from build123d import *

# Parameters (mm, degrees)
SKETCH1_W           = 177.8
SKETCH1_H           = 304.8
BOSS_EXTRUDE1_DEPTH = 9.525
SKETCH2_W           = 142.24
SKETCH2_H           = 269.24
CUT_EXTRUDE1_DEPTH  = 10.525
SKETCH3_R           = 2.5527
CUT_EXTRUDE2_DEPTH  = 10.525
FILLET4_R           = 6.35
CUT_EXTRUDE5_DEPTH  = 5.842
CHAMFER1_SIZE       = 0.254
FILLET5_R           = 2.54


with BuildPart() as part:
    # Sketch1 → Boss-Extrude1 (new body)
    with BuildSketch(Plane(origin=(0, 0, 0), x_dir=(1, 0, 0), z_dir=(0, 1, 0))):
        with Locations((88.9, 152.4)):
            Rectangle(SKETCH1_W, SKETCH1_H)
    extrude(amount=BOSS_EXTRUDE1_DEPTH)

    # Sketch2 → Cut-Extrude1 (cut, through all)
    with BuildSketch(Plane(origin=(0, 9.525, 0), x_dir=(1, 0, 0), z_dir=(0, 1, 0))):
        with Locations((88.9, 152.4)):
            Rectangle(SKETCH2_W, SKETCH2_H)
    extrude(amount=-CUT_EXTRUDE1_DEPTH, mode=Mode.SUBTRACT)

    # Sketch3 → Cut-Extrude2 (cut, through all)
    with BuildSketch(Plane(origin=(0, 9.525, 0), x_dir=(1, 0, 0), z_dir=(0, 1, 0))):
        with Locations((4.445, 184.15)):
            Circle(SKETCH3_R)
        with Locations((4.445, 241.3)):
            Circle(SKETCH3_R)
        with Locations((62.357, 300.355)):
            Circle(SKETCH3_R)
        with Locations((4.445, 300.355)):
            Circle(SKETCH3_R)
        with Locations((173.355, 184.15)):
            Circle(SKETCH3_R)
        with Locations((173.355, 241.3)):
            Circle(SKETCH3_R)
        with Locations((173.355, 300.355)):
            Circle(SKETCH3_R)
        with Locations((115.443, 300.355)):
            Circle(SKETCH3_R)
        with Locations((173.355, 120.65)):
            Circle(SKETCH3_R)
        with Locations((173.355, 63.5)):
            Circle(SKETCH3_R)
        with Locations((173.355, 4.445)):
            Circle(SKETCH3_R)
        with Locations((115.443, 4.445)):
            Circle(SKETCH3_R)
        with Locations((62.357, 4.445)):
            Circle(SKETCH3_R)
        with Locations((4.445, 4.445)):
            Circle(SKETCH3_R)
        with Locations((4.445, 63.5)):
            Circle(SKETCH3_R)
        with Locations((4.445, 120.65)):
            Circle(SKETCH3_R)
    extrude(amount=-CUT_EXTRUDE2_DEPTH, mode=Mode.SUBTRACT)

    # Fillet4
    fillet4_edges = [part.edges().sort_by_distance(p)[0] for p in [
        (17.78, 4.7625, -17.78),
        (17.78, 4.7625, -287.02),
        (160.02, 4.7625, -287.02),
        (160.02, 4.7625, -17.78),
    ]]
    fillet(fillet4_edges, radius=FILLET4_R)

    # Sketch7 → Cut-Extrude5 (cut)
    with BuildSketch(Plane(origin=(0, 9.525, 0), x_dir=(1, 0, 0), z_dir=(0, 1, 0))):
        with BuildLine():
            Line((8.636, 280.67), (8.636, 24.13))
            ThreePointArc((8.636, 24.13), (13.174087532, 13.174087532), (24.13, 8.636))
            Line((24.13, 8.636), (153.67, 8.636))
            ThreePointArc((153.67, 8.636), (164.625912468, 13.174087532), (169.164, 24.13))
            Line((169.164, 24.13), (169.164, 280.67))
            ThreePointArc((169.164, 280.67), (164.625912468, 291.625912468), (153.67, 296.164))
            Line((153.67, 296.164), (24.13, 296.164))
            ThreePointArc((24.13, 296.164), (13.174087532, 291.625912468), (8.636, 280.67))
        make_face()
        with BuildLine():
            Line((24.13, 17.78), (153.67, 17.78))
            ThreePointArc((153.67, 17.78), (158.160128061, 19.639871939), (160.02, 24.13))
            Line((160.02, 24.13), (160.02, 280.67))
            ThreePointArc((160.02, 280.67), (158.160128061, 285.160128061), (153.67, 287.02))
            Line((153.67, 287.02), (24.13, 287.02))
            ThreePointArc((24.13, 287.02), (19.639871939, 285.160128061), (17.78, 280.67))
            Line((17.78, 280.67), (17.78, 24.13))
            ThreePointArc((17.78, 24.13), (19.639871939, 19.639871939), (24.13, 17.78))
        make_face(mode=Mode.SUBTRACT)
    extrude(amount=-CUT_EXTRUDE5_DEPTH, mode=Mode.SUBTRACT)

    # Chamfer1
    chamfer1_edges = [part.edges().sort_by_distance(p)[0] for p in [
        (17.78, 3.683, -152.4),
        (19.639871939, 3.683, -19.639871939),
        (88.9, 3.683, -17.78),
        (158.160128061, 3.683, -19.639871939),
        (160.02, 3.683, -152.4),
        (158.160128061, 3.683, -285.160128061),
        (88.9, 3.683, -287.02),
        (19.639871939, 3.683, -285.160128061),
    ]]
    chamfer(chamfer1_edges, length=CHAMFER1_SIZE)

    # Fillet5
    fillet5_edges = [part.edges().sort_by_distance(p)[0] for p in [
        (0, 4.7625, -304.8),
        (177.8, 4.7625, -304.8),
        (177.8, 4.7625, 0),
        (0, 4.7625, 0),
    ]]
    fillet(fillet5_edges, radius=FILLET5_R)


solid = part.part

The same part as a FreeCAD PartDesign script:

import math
import FreeCAD as App
import Part
import Sketcher

V = App.Vector
Q = App.Units.Quantity


def edges_at(feature, points):
    """Names of the edges that pass closest to the given points."""
    edges = feature.Shape.Edges
    near = lambda p: min(range(len(edges)), key=lambda i: edges[i].distToShape(Part.Vertex(*p))[0])
    return sorted({f"Edge{near(p) + 1}" for p in points})


def add_polygon(sketch, points):
    """Adds a closed chain of lines whose ends are joined by coincident constraints."""
    first, n = sketch.GeometryCount, len(points)
    for a, b in zip(points, points[1:] + points[:1]):
        sketch.addGeometry(Part.LineSegment(App.Vector(*a, 0), App.Vector(*b, 0)), False)
    for i in range(n):
        sketch.addConstraint(Sketcher.Constraint("Coincident", first + i, 2, first + (i + 1) % n, 1))

doc = App.newDocument("Part")
body = doc.addObject("PartDesign::Body", "Body")

# Sketch on XZ plane
sketch1 = body.newObject("Sketcher::SketchObject", "Sketch")
sketch1.AttachmentSupport = (doc.getObject("XZ_Plane"), [""])
sketch1.MapMode = "FlatFace"
add_polygon(sketch1, [(0, -305), (0, 0), (178, 0), (178, -305)])  # lines 0-3
sketch1.addConstraint([
    Sketcher.Constraint("Vertical", 0),
    Sketcher.Constraint("Horizontal", 1),
    Sketcher.Constraint("Vertical", 2),
    Sketcher.Constraint("Horizontal", 3),
    Sketcher.Constraint("Coincident", 0, 2, -1, 1),
    Sketcher.Constraint("DistanceX", 1, 1, 1, 2, Q("7 in")),
    Sketcher.Constraint("DistanceY", 0, 1, 0, 2, Q("12 in")),
])
pad1 = body.newObject("PartDesign::Pad", "Pad")
pad1.Profile = sketch1
pad1.Length = Q("0.375 in")
pad1.Reversed = True

# Sketch on XZ plane
sketch2 = body.newObject("Sketcher::SketchObject", "Sketch001")
sketch2.AttachmentSupport = (doc.getObject("XZ_Plane"), [""])
sketch2.MapMode = "FlatFace"
sketch2.AttachmentOffset = App.Placement(V(0, 0, -0.375 * 25.4), App.Rotation())
add_polygon(sketch2, [(18, -287), (18, -18), (160, -18), (160, -287)])  # lines 0-3
sketch2.addConstraint([
    Sketcher.Constraint("Vertical", 0),
    Sketcher.Constraint("Horizontal", 1),
    Sketcher.Constraint("Vertical", 2),
    Sketcher.Constraint("Horizontal", 3),
    Sketcher.Constraint("DistanceX", 1, 1, 1, 2, Q("5.6 in")),
    Sketcher.Constraint("DistanceY", 0, 1, 0, 2, Q("10.6 in")),
    Sketcher.Constraint("DistanceX", -1, 1, 0, 2, Q("0.7 in")),
    Sketcher.Constraint("DistanceY", 0, 2, -1, 1, Q("0.7 in")),
])
pocket1 = body.newObject("PartDesign::Pocket", "Pocket")
pocket1.Profile = sketch2
pocket1.Type = "ThroughAll"
pocket1.Reversed = True

# Sketch on XZ plane
sketch3 = body.newObject("Sketcher::SketchObject", "Sketch002")
sketch3.AttachmentSupport = (doc.getObject("XZ_Plane"), [""])
sketch3.MapMode = "FlatFace"
sketch3.AttachmentOffset = App.Placement(V(0, 0, -0.375 * 25.4), App.Rotation())
sketch3.addGeometry([
    Part.Circle(V(4.4, -184.2, 0), V(0, 0, 1), 2.6),  # 0
    Part.Circle(V(4.4, -241.3, 0), V(0, 0, 1), 2.6),  # 1
    Part.Circle(V(62.4, -300.4, 0), V(0, 0, 1), 2.6),  # 2
    Part.Circle(V(4.4, -300.4, 0), V(0, 0, 1), 2.6),  # 3
    Part.Circle(V(173.4, -184.2, 0), V(0, 0, 1), 2.6),  # 4
    Part.Circle(V(173.4, -241.3, 0), V(0, 0, 1), 2.6),  # 5
    Part.Circle(V(173.4, -300.4, 0), V(0, 0, 1), 2.6),  # 6
    Part.Circle(V(115.4, -300.4, 0), V(0, 0, 1), 2.6),  # 7
    Part.Circle(V(173.4, -120.7, 0), V(0, 0, 1), 2.6),  # 8
    Part.Circle(V(173.4, -63.5, 0), V(0, 0, 1), 2.6),  # 9
    Part.Circle(V(173.4, -4.4, 0), V(0, 0, 1), 2.6),  # 10
    Part.Circle(V(115.4, -4.4, 0), V(0, 0, 1), 2.6),  # 11
    Part.Circle(V(62.4, -4.4, 0), V(0, 0, 1), 2.6),  # 12
    Part.Circle(V(4.4, -4.4, 0), V(0, 0, 1), 2.6),  # 13
    Part.Circle(V(4.4, -63.5, 0), V(0, 0, 1), 2.6),  # 14
    Part.Circle(V(4.4, -120.7, 0), V(0, 0, 1), 2.6),  # 15
], False)
sketch3.addConstraint([
    Sketcher.Constraint("Equal", 0, 1),
    Sketcher.Constraint("Equal", 1, 2),
    Sketcher.Constraint("Equal", 2, 3),
    Sketcher.Constraint("Equal", 3, 4),
    Sketcher.Constraint("Equal", 4, 5),
    Sketcher.Constraint("Equal", 5, 6),
    Sketcher.Constraint("Equal", 6, 7),
    Sketcher.Constraint("Equal", 7, 8),
    Sketcher.Constraint("Equal", 8, 9),
    Sketcher.Constraint("Equal", 9, 10),
    Sketcher.Constraint("Equal", 10, 11),
    Sketcher.Constraint("Equal", 11, 12),
    Sketcher.Constraint("Equal", 12, 13),
    Sketcher.Constraint("Equal", 13, 14),
    Sketcher.Constraint("Equal", 14, 15),
    Sketcher.Constraint("Horizontal", 2, 3, 3, 3),
    Sketcher.Constraint("Horizontal", 0, 3, 4, 3),
    Sketcher.Constraint("Horizontal", 1, 3, 5, 3),
    Sketcher.Constraint("Horizontal", 3, 3, 6, 3),
    Sketcher.Constraint("Horizontal", 6, 3, 7, 3),
    Sketcher.Constraint("Horizontal", 10, 3, 11, 3),
    Sketcher.Constraint("Horizontal", 11, 3, 12, 3),
    Sketcher.Constraint("Horizontal", 12, 3, 13, 3),
    Sketcher.Constraint("Horizontal", 9, 3, 14, 3),
    Sketcher.Constraint("Horizontal", 8, 3, 15, 3),
    Sketcher.Constraint("Vertical", 0, 3, 1, 3),
    Sketcher.Constraint("Vertical", 1, 3, 3, 3),
    Sketcher.Constraint("Vertical", 4, 3, 5, 3),
    Sketcher.Constraint("Vertical", 5, 3, 6, 3),
    Sketcher.Constraint("Vertical", 6, 3, 8, 3),
    Sketcher.Constraint("Vertical", 8, 3, 9, 3),
    Sketcher.Constraint("Vertical", 9, 3, 10, 3),
    Sketcher.Constraint("Vertical", 7, 3, 11, 3),
    Sketcher.Constraint("Vertical", 2, 3, 12, 3),
    Sketcher.Constraint("Vertical", 3, 3, 13, 3),
    Sketcher.Constraint("Vertical", 13, 3, 14, 3),
    Sketcher.Constraint("Vertical", 14, 3, 15, 3),
    Sketcher.Constraint("Diameter", 0, Q("0.201 in")),
    Sketcher.Constraint("DistanceY", 5, 3, 9, 3, Q("7 in")),
    Sketcher.Constraint("DistanceY", 1, 3, -1, 1, Q("9.5 in")),
    Sketcher.Constraint("DistanceY", 4, 3, 8, 3, Q("2.5 in")),
    Sketcher.Constraint("DistanceY", 0, 3, -1, 1, Q("7.25 in")),
    Sketcher.Constraint("DistanceX", 1, 3, 2, 3, Q("2.28 in")),
    Sketcher.Constraint("DistanceX", 2, 3, 4, 3, Q("4.37 in")),
    Sketcher.Constraint("DistanceX", 2, 3, 7, 3, Q("2.09 in")),
    Sketcher.Constraint("DistanceX", -1, 1, 0, 3, Q("0.175 in")),
    Sketcher.Constraint("DistanceY", 2, 3, -1, 1, Q("11.825 in")),
    Sketcher.Constraint("DistanceY", 10, 3, -1, 1, Q("0.175 in")),
])
pocket2 = body.newObject("PartDesign::Pocket", "Pocket001")
pocket2.Profile = sketch3
pocket2.Type = "ThroughAll"
pocket2.Reversed = True
doc.recompute()

fillet = body.newObject("PartDesign::Fillet", "Fillet")
fillet.Base = (pocket2, edges_at(pocket2, [
    (17.78, 4.763, -17.78),
    (17.78, 4.763, -287.02),
    (160.02, 4.763, -287.02),
    (160.02, 4.763, -17.78),
]))
fillet.Radius = Q("0.25 in")

# Sketch on XZ plane
sketch4 = body.newObject("Sketcher::SketchObject", "Sketch003")
sketch4.AttachmentSupport = (doc.getObject("XZ_Plane"), [""])
sketch4.MapMode = "FlatFace"
sketch4.AttachmentOffset = App.Placement(V(0, 0, -0.375 * 25.4), App.Rotation())
sketch4.addGeometry([
    Part.LineSegment(V(9, -281, 0), V(9, -24, 0)),  # 0
    Part.ArcOfCircle(Part.Circle(V(24, -24, 0), V(0, 0, 1), 15), math.radians(90), math.radians(180)),  # 1
    Part.LineSegment(V(24, -9, 0), V(154, -9, 0)),  # 2
    Part.ArcOfCircle(Part.Circle(V(154, -24, 0), V(0, 0, 1), 15), math.radians(0), math.radians(90)),  # 3
    Part.LineSegment(V(169, -24, 0), V(169, -281, 0)),  # 4
    Part.ArcOfCircle(Part.Circle(V(154, -281, 0), V(0, 0, 1), 15), math.radians(-90), math.radians(0)),  # 5
    Part.LineSegment(V(154, -296, 0), V(24, -296, 0)),  # 6
    Part.ArcOfCircle(Part.Circle(V(24, -281, 0), V(0, 0, 1), 15), math.radians(180), math.radians(270)),  # 7
    Part.LineSegment(V(154, -18, 0), V(24, -18, 0)),  # 8
    Part.ArcOfCircle(Part.Circle(V(24, -24, 0), V(0, 0, 1), 6), math.radians(90), math.radians(180)),  # 9
    Part.LineSegment(V(18, -24, 0), V(18, -281, 0)),  # 10
    Part.ArcOfCircle(Part.Circle(V(24, -281, 0), V(0, 0, 1), 6), math.radians(180), math.radians(270)),  # 11
    Part.LineSegment(V(24, -287, 0), V(154, -287, 0)),  # 12
    Part.ArcOfCircle(Part.Circle(V(154, -281, 0), V(0, 0, 1), 6), math.radians(-90), math.radians(0)),  # 13
    Part.LineSegment(V(160, -281, 0), V(160, -24, 0)),  # 14
    Part.ArcOfCircle(Part.Circle(V(154, -24, 0), V(0, 0, 1), 6), math.radians(0), math.radians(90)),  # 15
], False)
sketch4.addConstraint([
    Sketcher.Constraint("Tangent", 0, 2, 1, 2),
    Sketcher.Constraint("Tangent", 1, 1, 2, 1),
    Sketcher.Constraint("Tangent", 2, 2, 3, 2),
    Sketcher.Constraint("Tangent", 3, 1, 4, 1),
    Sketcher.Constraint("Tangent", 4, 2, 5, 2),
    Sketcher.Constraint("Tangent", 5, 1, 6, 1),
    Sketcher.Constraint("Tangent", 6, 2, 7, 2),
    Sketcher.Constraint("Tangent", 7, 1, 0, 1),
    Sketcher.Constraint("Tangent", 8, 2, 9, 1),
    Sketcher.Constraint("Tangent", 9, 2, 10, 1),
    Sketcher.Constraint("Tangent", 10, 2, 11, 1),
    Sketcher.Constraint("Tangent", 11, 2, 12, 1),
    Sketcher.Constraint("Tangent", 12, 2, 13, 1),
    Sketcher.Constraint("Tangent", 13, 2, 14, 1),
    Sketcher.Constraint("Tangent", 14, 2, 15, 1),
    Sketcher.Constraint("Tangent", 15, 2, 8, 1),
    Sketcher.Constraint("Vertical", 0),
    Sketcher.Constraint("Horizontal", 2),
    Sketcher.Constraint("Vertical", 4),
    Sketcher.Constraint("Horizontal", 6),
    Sketcher.Constraint("Horizontal", 8),
    Sketcher.Constraint("Vertical", 10),
    Sketcher.Constraint("Horizontal", 12),
    Sketcher.Constraint("Vertical", 14),
    Sketcher.Constraint("Coincident", 9, 3, 1, 3),
    Sketcher.Constraint("Coincident", 11, 3, 7, 3),
    Sketcher.Constraint("Coincident", 13, 3, 5, 3),
    Sketcher.Constraint("Equal", 1, 3),
    Sketcher.Constraint("Equal", 3, 5),
    Sketcher.Constraint("Equal", 5, 7),
    Sketcher.Constraint("Equal", 13, 15),
    Sketcher.Constraint("Radius", 1, Q("0.61 in")),
    Sketcher.Constraint("Radius", 9, Q("0.25 in")),
    Sketcher.Constraint("DistanceX", 2, 1, 2, 2, Q("5.1 in")),
    Sketcher.Constraint("DistanceY", 0, 1, 0, 2, Q("10.1 in")),
    Sketcher.Constraint("DistanceY", 8, 2, -1, 1, Q("0.7 in")),
    Sketcher.Constraint("DistanceX", -1, 1, 9, 2, Q("0.7 in")),
])
pocket3 = body.newObject("PartDesign::Pocket", "Pocket002")
pocket3.Profile = sketch4
pocket3.Length = Q("0.23 in")
pocket3.Reversed = True
doc.recompute()

chamfer = body.newObject("PartDesign::Chamfer", "Chamfer")
chamfer.Base = (pocket3, edges_at(pocket3, [
    (17.78, 3.683, -152.4),
    (19.64, 3.683, -19.64),
    (88.9, 3.683, -17.78),
    (158.16, 3.683, -19.64),
    (160.02, 3.683, -152.4),
    (158.16, 3.683, -285.16),
    (88.9, 3.683, -287.02),
    (19.64, 3.683, -285.16),
]))
chamfer.Size = Q("0.01 in")
doc.recompute()

fillet2 = body.newObject("PartDesign::Fillet", "Fillet001")
fillet2.Base = (chamfer, edges_at(chamfer, [
    (0, 4.763, -304.8),
    (177.8, 4.763, -304.8),
    (177.8, 4.763, 0),
    (0, 4.763, 0),
]))
fillet2.Radius = Q("0.1 in")

doc.recompute()
